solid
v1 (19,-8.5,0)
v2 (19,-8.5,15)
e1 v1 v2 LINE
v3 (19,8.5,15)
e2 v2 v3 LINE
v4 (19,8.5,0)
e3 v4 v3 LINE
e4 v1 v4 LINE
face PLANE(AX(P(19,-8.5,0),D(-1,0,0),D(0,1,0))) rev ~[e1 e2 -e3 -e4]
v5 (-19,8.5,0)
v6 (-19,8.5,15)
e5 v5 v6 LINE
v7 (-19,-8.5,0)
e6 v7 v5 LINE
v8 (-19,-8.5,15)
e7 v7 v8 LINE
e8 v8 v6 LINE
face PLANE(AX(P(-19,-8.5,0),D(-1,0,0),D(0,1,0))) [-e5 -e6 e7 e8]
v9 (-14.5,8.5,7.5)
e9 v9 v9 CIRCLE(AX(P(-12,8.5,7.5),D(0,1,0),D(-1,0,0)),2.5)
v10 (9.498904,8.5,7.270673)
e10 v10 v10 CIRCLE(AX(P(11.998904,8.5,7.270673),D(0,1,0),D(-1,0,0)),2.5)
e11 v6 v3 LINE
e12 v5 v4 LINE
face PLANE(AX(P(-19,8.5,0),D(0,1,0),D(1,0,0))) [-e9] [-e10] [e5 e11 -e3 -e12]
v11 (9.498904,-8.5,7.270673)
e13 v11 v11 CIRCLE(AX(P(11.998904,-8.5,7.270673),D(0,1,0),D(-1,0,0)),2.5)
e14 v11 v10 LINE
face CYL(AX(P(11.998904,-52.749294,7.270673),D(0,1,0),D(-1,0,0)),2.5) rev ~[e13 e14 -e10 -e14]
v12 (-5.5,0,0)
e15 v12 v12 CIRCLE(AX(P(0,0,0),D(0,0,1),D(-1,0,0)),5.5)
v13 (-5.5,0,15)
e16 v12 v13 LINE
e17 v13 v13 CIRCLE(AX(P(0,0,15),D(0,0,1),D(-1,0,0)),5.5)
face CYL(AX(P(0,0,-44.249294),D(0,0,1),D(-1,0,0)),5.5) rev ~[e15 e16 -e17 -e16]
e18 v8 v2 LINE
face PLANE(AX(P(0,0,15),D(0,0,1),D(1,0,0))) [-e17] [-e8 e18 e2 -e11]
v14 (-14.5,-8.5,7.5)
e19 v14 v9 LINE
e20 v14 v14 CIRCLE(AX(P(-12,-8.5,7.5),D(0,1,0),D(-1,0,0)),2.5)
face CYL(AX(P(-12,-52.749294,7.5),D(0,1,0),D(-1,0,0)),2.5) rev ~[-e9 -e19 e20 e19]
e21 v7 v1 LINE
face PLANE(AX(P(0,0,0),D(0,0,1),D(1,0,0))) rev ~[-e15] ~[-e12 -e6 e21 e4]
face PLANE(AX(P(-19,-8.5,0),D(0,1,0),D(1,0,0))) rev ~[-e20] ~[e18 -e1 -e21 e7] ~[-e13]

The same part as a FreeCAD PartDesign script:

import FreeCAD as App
import Part
import Sketcher

doc = App.newDocument("Part")
body = doc.addObject("PartDesign::Body", "Body")

sketch1 = body.newObject("Sketcher::SketchObject", "Sketch")
sketch1.AttachmentSupport = (doc.getObject("XY_Plane"), [""])
sketch1.MapMode = "FlatFace"
sketch1.addGeometry([
    Part.LineSegment(App.Vector(-19, 8, 0), App.Vector(-19, -8, 0)),
    Part.LineSegment(App.Vector(-19, -8, 0), App.Vector(19, -8, 0)),
    Part.LineSegment(App.Vector(19, -8, 0), App.Vector(19, 8, 0)),
    Part.LineSegment(App.Vector(19, 8, 0), App.Vector(-19, 8, 0)),
], False)
sketch1.addConstraint([
    Sketcher.Constraint("Coincident", 0, 2, 1, 1),
    Sketcher.Constraint("Coincident", 1, 2, 2, 1),
    Sketcher.Constraint("Coincident", 2, 2, 3, 1),
    Sketcher.Constraint("Coincident", 3, 2, 0, 1),
    Sketcher.Constraint("Vertical", 0),
    Sketcher.Constraint("Horizontal", 1),
    Sketcher.Constraint("Vertical", 2),
    Sketcher.Constraint("Horizontal", 3),
    Sketcher.Constraint("Symmetric", 0, 2, 2, 2, -1, 1),
    Sketcher.Constraint("DistanceX", 1, 1, 1, 2, 38.0),
    Sketcher.Constraint("DistanceY", 0, 2, 0, 1, 17.0),
])
pad1 = body.newObject("PartDesign::Pad", "Pad")
pad1.Profile = sketch1
pad1.Length = 15

sketch2 = body.newObject("Sketcher::SketchObject", "Sketch001")
sketch2.AttachmentSupport = (doc.getObject("XY_Plane"), [""])
sketch2.MapMode = "FlatFace"
sketch2.addGeometry(Part.Circle(App.Vector(0, 0, 0), App.Vector(0, 0, 1), 6), False)
sketch2.addConstraint([
    Sketcher.Constraint("Coincident", 0, 3, -1, 1),
    Sketcher.Constraint("Diameter", 0, 11.0),
])
doc.recompute()
hole = body.newObject("PartDesign::Hole", "Hole")
hole.Profile = sketch2
hole.ThreadType = "None"
hole.Diameter = 11
hole.DepthType = "ThroughAll"
hole.Reversed = True

sketch3 = body.newObject("Sketcher::SketchObject", "Sketch002")
sketch3.AttachmentSupport = (doc.getObject("XZ_Plane"), [""])
sketch3.MapMode = "FlatFace"
sketch3.AttachmentOffset = App.Placement(App.Vector(0, 0, 8.5), App.Rotation())
sketch3.addGeometry([
    Part.Circle(App.Vector(-12, 7.5, 0), App.Vector(0, 0, 1), 2.5),
    Part.Circle(App.Vector(12, 7.3, 0), App.Vector(0, 0, 1), 2.5),
], False)
sketch3.addConstraint([
    Sketcher.Constraint("Equal", 0, 1),
    Sketcher.Constraint("Diameter", 0, 5.0),
    Sketcher.Constraint("DistanceX", 0, 3, -1, 1, 12.0),
    Sketcher.Constraint("DistanceY", -1, 1, 0, 3, 7.5),
    Sketcher.Constraint("DistanceX", -1, 1, 1, 3, 11.998904),
    Sketcher.Constraint("DistanceY", -1, 1, 1, 3, 7.270673),
])
doc.recompute()
hole2 = body.newObject("PartDesign::Hole", "Hole001")
hole2.Profile = sketch3
hole2.ThreadType = "None"
hole2.Diameter = 5
hole2.DepthType = "ThroughAll"

doc.recompute()
